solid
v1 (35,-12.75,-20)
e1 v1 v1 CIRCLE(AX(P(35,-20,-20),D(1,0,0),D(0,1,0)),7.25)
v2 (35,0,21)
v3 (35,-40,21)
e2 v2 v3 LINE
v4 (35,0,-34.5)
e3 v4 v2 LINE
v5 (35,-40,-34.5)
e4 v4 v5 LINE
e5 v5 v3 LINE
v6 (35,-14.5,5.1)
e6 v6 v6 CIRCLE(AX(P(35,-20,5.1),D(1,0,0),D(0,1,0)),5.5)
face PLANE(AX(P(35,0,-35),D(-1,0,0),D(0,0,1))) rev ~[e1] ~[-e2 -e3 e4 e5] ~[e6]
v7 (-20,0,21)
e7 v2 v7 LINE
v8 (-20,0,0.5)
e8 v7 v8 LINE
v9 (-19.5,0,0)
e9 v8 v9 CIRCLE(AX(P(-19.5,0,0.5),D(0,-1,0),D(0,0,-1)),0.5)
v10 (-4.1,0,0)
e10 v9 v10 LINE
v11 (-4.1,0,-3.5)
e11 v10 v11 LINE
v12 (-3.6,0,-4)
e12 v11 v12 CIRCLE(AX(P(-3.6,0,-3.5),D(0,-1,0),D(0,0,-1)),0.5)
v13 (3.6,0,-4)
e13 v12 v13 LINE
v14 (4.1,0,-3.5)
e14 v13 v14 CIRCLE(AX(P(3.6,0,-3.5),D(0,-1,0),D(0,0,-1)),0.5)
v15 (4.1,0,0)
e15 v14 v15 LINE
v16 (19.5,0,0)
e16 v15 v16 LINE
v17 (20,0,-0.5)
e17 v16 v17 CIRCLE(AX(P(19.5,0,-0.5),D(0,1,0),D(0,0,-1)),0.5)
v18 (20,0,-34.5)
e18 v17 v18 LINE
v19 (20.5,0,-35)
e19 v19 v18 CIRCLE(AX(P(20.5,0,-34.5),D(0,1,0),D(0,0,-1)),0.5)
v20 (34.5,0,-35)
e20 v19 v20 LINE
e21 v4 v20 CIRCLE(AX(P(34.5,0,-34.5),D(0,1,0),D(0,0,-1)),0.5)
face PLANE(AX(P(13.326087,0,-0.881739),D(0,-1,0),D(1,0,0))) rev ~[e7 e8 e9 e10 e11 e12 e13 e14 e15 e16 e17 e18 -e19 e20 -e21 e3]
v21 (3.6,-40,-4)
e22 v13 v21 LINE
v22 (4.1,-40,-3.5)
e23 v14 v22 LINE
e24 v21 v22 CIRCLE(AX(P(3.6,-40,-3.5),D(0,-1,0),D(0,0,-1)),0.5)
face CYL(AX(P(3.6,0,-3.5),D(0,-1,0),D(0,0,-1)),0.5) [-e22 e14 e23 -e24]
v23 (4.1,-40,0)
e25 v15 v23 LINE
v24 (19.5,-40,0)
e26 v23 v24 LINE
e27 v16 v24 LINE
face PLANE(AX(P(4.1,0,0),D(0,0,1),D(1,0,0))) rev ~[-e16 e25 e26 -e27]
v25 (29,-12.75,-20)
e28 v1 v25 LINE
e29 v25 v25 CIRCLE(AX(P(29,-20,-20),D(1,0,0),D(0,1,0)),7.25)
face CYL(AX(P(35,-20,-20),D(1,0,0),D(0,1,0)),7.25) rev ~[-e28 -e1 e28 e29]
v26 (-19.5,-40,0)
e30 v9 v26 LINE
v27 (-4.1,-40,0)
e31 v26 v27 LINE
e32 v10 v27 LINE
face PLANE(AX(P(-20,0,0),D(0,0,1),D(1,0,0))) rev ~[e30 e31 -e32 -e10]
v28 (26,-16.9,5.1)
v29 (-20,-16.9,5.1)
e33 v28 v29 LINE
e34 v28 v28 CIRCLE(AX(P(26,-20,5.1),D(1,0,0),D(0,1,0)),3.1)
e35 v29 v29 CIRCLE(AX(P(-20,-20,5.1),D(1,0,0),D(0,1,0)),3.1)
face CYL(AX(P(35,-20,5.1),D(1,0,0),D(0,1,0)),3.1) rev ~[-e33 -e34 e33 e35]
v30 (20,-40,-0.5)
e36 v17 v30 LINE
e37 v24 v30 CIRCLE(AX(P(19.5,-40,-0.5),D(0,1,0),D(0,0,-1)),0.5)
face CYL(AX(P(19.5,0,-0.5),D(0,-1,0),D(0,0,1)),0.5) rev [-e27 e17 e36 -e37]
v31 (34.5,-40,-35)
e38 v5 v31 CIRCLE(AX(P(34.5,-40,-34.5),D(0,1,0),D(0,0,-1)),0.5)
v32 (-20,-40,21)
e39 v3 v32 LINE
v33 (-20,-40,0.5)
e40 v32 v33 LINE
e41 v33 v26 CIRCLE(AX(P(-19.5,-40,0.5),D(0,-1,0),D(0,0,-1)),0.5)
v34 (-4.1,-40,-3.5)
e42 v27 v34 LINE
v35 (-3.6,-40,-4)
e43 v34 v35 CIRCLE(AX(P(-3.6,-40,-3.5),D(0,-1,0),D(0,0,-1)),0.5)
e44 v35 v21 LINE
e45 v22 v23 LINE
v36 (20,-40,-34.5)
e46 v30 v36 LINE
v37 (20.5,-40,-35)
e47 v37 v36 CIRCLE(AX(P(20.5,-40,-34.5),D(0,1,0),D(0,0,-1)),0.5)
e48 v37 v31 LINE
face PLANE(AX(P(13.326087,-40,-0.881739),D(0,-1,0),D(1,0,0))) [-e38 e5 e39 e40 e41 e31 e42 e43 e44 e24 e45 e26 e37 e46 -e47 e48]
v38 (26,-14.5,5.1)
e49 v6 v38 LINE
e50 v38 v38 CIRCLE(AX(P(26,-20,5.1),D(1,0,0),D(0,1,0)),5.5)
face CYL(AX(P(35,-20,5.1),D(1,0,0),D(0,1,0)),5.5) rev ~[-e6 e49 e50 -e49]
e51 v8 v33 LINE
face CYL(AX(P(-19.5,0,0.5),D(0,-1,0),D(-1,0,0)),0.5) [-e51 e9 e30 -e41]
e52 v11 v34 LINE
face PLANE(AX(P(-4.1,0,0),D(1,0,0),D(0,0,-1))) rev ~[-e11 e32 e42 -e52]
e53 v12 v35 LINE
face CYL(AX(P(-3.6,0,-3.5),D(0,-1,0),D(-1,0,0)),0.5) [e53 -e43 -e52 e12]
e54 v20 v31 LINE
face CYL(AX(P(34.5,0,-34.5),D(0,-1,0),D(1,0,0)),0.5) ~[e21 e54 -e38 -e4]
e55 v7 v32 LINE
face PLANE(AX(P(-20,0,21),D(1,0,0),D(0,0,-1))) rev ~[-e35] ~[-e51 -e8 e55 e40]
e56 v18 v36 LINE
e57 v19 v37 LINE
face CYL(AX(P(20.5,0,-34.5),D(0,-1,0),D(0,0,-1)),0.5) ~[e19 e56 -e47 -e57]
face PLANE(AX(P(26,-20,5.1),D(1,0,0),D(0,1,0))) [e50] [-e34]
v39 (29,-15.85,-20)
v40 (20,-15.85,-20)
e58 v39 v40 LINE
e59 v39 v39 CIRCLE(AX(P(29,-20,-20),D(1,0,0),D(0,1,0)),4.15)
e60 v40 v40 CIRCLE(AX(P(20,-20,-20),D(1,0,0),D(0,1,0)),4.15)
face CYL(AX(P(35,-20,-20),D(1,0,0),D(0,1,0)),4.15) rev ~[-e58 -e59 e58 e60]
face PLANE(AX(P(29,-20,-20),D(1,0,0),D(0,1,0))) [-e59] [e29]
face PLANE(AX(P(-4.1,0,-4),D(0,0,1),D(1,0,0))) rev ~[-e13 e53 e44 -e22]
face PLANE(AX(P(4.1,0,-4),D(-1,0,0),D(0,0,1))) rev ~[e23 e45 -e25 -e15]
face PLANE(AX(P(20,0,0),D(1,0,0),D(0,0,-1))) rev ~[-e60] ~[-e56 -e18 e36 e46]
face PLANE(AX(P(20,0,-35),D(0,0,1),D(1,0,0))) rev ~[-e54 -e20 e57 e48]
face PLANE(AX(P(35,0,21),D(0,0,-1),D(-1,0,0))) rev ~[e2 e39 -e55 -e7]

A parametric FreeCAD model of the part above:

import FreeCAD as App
import Part
import Sketcher

V = App.Vector
Q = App.Units.Quantity


def edges_at(feature, points):
    """Names of the edges that pass closest to the given points."""
    edges = feature.Shape.Edges
    near = lambda p: min(range(len(edges)), key=lambda i: edges[i].distToShape(Part.Vertex(*p))[0])
    return sorted({f"Edge{near(p) + 1}" for p in points})


def add_polygon(sketch, points):
    """Adds a closed chain of lines whose ends are joined by coincident constraints."""
    first, n = sketch.GeometryCount, len(points)
    for a, b in zip(points, points[1:] + points[:1]):
        sketch.addGeometry(Part.LineSegment(App.Vector(*a, 0), App.Vector(*b, 0)), False)
    for i in range(n):
        sketch.addConstraint(Sketcher.Constraint("Coincident", first + i, 2, first + (i + 1) % n, 1))

doc = App.newDocument("Part")
body = doc.addObject("PartDesign::Body", "Body")

sketch1 = body.newObject("Sketcher::SketchObject", "Sketch")
sketch1.AttachmentSupport = (doc.getObject("XZ_Plane"), [""])
sketch1.MapMode = "FlatFace"
add_polygon(sketch1, [(35, 21), (-20, 21), (-20, 0), (-4.1, 0), (-4.1, -4), (4.1, -4), (4.1, 0), (20, 0), (20, -35), (35, -35)])
sketch1.addConstraint([
    Sketcher.Constraint("Horizontal", 0),
    Sketcher.Constraint("Vertical", 1),
    Sketcher.Constraint("Horizontal", 2),
    Sketcher.Constraint("Vertical", 3),
    Sketcher.Constraint("Horizontal", 4),
    Sketcher.Constraint("Vertical", 5),
    Sketcher.Constraint("Horizontal", 6),
    Sketcher.Constraint("Vertical", 7),
    Sketcher.Constraint("Horizontal", 8),
    Sketcher.Constraint("Vertical", 9),
    Sketcher.Constraint("Symmetric", 2, 2, 5, 2, -1, 1),
    Sketcher.Constraint("Symmetric", 1, 2, 6, 2, -2),
    Sketcher.Constraint("DistanceX", 0, 2, 0, 1, Q("55 mm")),
    Sketcher.Constraint("DistanceX", 8, 1, 8, 2, Q("15 mm")),
    Sketcher.Constraint("DistanceY", 1, 2, 1, 1, Q("21 mm")),
    Sketcher.Constraint("DistanceY", 3, 2, 3, 1, Q("4 mm")),
    Sketcher.Constraint("DistanceY", 7, 2, 7, 1, Q("35 mm")),
    Sketcher.Constraint("DistanceX", 2, 1, 2, 2, Q("15.9 mm")),
])
pad1 = body.newObject("PartDesign::Pad", "Pad")
pad1.Profile = sketch1
pad1.Length = 40

sketch2 = body.newObject("Sketcher::SketchObject", "Sketch001")
sketch2.AttachmentSupport = (doc.getObject("YZ_Plane"), [""])
sketch2.MapMode = "FlatFace"
sketch2.AttachmentOffset = App.Placement(V(0, 0, 35), App.Rotation())
sketch2.addGeometry([
    Part.Circle(V(-20, -20, 0), V(0, 0, 1), 4.15),
    Part.Circle(V(-20, 5.1, 0), V(0, 0, 1), 3.1),
], False)
sketch2.addConstraint([
    Sketcher.Constraint("Vertical", 0, 3, 1, 3),
    Sketcher.Constraint("Diameter", 0, Q("8.3 mm")),
    Sketcher.Constraint("Diameter", 1, Q("6.2 mm")),
    Sketcher.Constraint("DistanceX", 0, 3, -1, 1, Q("20 mm")),
    Sketcher.Constraint("DistanceY", 0, 3, -1, 1, Q("20 mm")),
    Sketcher.Constraint("DistanceY", -1, 1, 1, 3, Q("5.1 mm")),
])
pocket1 = body.newObject("PartDesign::Pocket", "Pocket")
pocket1.Profile = sketch2
pocket1.Type = "ThroughAll"
doc.recompute()

fillet = body.newObject("PartDesign::Fillet", "Fillet")
fillet.Base = (pocket1, edges_at(pocket1, [
    (-20, -20, 0),
    (-4.1, -20, -4),
    (4.1, -20, -4),
    (20, -20, 0),
    (20, -20, -35),
    (35, -20, -35),
]))
fillet.Radius = 0.5

sketch3 = body.newObject("Sketcher::SketchObject", "Sketch002")
sketch3.AttachmentSupport = (doc.getObject("YZ_Plane"), [""])
sketch3.MapMode = "FlatFace"
sketch3.AttachmentOffset = App.Placement(V(0, 0, 35), App.Rotation())
sketch3.addGeometry([
    Part.Circle(V(-20, -20, 0), V(0, 0, 1), 7.25),
    Part.Circle(V(-20, -20, 0), V(0, 0, 1), 4.15),
], False)
sketch3.addConstraint([
    Sketcher.Constraint("Coincident", 1, 3, 0, 3),
    Sketcher.Constraint("Diameter", 0, Q("14.5 mm")),
    Sketcher.Constraint("Diameter", 1, Q("8.3 mm")),
    Sketcher.Constraint("DistanceX", 0, 3, -1, 1, Q("20 mm")),
    Sketcher.Constraint("DistanceY", 0, 3, -1, 1, Q("20 mm")),
])
pocket2 = body.newObject("PartDesign::Pocket", "Pocket001")
pocket2.Profile = sketch3
pocket2.Length = 6

sketch4 = body.newObject("Sketcher::SketchObject", "Sketch003")
sketch4.AttachmentSupport = (doc.getObject("YZ_Plane"), [""])
sketch4.MapMode = "FlatFace"
sketch4.AttachmentOffset = App.Placement(V(0, 0, 35), App.Rotation())
sketch4.addGeometry([
    Part.Circle(V(-20, 5.1, 0), V(0, 0, 1), 5.5),
    Part.Circle(V(-20, 5.1, 0), V(0, 0, 1), 3.1),
], False)
sketch4.addConstraint([
    Sketcher.Constraint("Coincident", 1, 3, 0, 3),
    Sketcher.Constraint("Diameter", 0, Q("11 mm")),
    Sketcher.Constraint("Diameter", 1, Q("6.2 mm")),
    Sketcher.Constraint("DistanceX", 0, 3, -1, 1, Q("20 mm")),
    Sketcher.Constraint("DistanceY", -1, 1, 0, 3, Q("5.1 mm")),
])
pocket3 = body.newObject("PartDesign::Pocket", "Pocket002")
pocket3.Profile = sketch4
pocket3.Length = 9

doc.recompute()
